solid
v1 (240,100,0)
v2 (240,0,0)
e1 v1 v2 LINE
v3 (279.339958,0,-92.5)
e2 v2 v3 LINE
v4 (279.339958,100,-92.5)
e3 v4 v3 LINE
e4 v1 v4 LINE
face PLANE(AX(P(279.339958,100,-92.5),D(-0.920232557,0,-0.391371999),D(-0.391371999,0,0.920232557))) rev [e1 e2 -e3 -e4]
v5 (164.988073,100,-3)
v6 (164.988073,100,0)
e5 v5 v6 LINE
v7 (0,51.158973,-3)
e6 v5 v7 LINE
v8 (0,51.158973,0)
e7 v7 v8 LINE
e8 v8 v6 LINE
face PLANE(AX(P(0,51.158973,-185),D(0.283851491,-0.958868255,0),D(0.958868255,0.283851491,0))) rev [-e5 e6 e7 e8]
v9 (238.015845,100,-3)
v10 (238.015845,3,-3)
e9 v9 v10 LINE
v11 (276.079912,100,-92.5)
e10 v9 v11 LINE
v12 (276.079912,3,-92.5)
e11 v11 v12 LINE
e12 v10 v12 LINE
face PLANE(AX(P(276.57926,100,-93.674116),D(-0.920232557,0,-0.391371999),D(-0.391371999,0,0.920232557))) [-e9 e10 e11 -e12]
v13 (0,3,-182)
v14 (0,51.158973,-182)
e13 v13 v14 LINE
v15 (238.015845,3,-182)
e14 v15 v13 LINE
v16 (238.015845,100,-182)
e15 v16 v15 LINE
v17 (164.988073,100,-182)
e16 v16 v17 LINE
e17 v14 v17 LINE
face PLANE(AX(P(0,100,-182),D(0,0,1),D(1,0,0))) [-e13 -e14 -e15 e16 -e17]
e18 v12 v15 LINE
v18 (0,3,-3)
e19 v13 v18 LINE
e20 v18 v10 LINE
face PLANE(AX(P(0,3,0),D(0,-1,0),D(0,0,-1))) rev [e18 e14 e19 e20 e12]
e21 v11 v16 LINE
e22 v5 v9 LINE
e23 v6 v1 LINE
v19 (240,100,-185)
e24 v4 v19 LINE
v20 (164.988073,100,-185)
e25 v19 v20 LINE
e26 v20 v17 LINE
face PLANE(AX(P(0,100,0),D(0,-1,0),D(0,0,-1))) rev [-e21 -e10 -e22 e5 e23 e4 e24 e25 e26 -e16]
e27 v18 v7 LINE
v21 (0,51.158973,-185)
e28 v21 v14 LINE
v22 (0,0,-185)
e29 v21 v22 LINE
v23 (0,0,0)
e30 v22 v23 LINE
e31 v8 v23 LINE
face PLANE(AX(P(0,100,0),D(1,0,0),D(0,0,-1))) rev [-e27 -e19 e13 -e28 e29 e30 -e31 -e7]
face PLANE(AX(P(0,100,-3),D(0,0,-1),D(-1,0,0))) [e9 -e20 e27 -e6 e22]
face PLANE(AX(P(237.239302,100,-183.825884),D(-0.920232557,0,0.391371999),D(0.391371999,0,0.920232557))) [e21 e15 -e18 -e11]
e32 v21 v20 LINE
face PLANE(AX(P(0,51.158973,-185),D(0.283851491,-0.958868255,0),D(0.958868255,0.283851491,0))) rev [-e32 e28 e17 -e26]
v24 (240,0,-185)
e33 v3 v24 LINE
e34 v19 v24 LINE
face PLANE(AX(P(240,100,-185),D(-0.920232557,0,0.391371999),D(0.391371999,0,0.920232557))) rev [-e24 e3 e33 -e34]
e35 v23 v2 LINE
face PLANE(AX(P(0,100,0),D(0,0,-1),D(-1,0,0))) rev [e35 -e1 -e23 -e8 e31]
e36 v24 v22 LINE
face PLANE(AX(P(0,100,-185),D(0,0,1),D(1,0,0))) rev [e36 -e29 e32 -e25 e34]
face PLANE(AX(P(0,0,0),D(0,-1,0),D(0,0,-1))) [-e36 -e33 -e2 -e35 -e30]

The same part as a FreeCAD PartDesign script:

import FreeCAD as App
import Part
import Sketcher

V = App.Vector
Q = App.Units.Quantity


def faces_at(feature, points):
    """Names of the faces that lie closest to the given points."""
    faces = feature.Shape.Faces
    near = lambda p: min(range(len(faces)), key=lambda i: faces[i].distToShape(Part.Vertex(*p))[0])
    return sorted({f"Face{near(p) + 1}" for p in points})


def add_polygon(sketch, points):
    """Adds a closed chain of lines whose ends are joined by coincident constraints."""
    first, n = sketch.GeometryCount, len(points)
    for a, b in zip(points, points[1:] + points[:1]):
        sketch.addGeometry(Part.LineSegment(App.Vector(*a, 0), App.Vector(*b, 0)), False)
    for i in range(n):
        sketch.addConstraint(Sketcher.Constraint("Coincident", first + i, 2, first + (i + 1) % n, 1))

doc = App.newDocument("Part")
body = doc.addObject("PartDesign::Body", "Body")

# Sketch on XZ plane
sketch1 = body.newObject("Sketcher::SketchObject", "Sketch")
sketch1.AttachmentSupport = (doc.getObject("XZ_Plane"), [""])
sketch1.MapMode = "FlatFace"
add_polygon(sketch1, [(279, -92), (240, -185), (0, -185), (0, 0), (240, 0)])  # lines 0-4
sketch1.addConstraint([
    Sketcher.Constraint("Horizontal", 1),
    Sketcher.Constraint("Vertical", 2),
    Sketcher.Constraint("Horizontal", 3),
    Sketcher.Constraint("Coincident", 2, 2, -1, 1),
    Sketcher.Constraint("Vertical", 0, 2, 3, 2),
    Sketcher.Constraint("Equal", 0, 4),
    Sketcher.Constraint("DistanceX", 1, 2, 1, 1, Q("240 mm")),
    Sketcher.Constraint("DistanceY", 2, 1, 2, 2, Q("185 mm")),
    Sketcher.Constraint("Distance", 0, Q("100.518069 mm")),
])
pad1 = body.newObject("PartDesign::Pad", "Pad")
pad1.Profile = sketch1
pad1.Length = 100
pad1.Reversed = True
doc.recompute()

thickness = body.newObject("PartDesign::Thickness", "Thickness")
thickness.Base = (pad1, faces_at(pad1, [(139.67, 100, -92.5)]))
thickness.Value = 3
thickness.Reversed = True
thickness.Join = "Intersection"

# Sketch on XZ plane
sketch2 = body.newObject("Sketcher::SketchObject", "Sketch001")
sketch2.AttachmentSupport = (doc.getObject("XZ_Plane"), [""])
sketch2.MapMode = "FlatFace"
sketch2.AttachmentOffset = App.Placement(V(0, 0, -100), App.Rotation())
add_polygon(sketch2, [(0, -182), (0, -3), (3, -3), (3, -182)])  # lines 0-3
sketch2.addConstraint([
    Sketcher.Constraint("Vertical", 0),
    Sketcher.Constraint("Horizontal", 1),
    Sketcher.Constraint("Vertical", 2),
    Sketcher.Constraint("Horizontal", 3),
    Sketcher.Constraint("PointOnObject", 0, 2, -2),
    Sketcher.Constraint("DistanceX", 1, 1, 1, 2, Q("3 mm")),
    Sketcher.Constraint("DistanceY", 0, 1, 0, 2, Q("179 mm")),
    Sketcher.Constraint("DistanceY", 0, 2, -1, 1, Q("3 mm")),
])
pocket1 = body.newObject("PartDesign::Pocket", "Pocket")
pocket1.Profile = sketch2
pocket1.Length = 97
pocket1.Reversed = True

# Sketch on XY plane
sketch3 = body.newObject("Sketcher::SketchObject", "Sketch002")
sketch3.AttachmentSupport = (doc.getObject("XY_Plane"), [""])
sketch3.MapMode = "FlatFace"
add_polygon(sketch3, [(0, 100), (0, 51), (165, 100)])  # lines 0-2
sketch3.addConstraint([
    Sketcher.Constraint("Vertical", 0),
    Sketcher.Constraint("Horizontal", 2),
    Sketcher.Constraint("PointOnObject", 0, 2, -2),
    Sketcher.Constraint("DistanceY", -1, 1, 1, 2, Q("100 mm")),
    Sketcher.Constraint("DistanceX", 2, 2, 2, 1, Q("164.988073 mm")),
    Sketcher.Constraint("DistanceY", 0, 2, 0, 1, Q("48.841027 mm")),
])
pocket2 = body.newObject("PartDesign::Pocket", "Pocket001")
pocket2.Profile = sketch3
pocket2.Type = "ThroughAll"

doc.recompute()
